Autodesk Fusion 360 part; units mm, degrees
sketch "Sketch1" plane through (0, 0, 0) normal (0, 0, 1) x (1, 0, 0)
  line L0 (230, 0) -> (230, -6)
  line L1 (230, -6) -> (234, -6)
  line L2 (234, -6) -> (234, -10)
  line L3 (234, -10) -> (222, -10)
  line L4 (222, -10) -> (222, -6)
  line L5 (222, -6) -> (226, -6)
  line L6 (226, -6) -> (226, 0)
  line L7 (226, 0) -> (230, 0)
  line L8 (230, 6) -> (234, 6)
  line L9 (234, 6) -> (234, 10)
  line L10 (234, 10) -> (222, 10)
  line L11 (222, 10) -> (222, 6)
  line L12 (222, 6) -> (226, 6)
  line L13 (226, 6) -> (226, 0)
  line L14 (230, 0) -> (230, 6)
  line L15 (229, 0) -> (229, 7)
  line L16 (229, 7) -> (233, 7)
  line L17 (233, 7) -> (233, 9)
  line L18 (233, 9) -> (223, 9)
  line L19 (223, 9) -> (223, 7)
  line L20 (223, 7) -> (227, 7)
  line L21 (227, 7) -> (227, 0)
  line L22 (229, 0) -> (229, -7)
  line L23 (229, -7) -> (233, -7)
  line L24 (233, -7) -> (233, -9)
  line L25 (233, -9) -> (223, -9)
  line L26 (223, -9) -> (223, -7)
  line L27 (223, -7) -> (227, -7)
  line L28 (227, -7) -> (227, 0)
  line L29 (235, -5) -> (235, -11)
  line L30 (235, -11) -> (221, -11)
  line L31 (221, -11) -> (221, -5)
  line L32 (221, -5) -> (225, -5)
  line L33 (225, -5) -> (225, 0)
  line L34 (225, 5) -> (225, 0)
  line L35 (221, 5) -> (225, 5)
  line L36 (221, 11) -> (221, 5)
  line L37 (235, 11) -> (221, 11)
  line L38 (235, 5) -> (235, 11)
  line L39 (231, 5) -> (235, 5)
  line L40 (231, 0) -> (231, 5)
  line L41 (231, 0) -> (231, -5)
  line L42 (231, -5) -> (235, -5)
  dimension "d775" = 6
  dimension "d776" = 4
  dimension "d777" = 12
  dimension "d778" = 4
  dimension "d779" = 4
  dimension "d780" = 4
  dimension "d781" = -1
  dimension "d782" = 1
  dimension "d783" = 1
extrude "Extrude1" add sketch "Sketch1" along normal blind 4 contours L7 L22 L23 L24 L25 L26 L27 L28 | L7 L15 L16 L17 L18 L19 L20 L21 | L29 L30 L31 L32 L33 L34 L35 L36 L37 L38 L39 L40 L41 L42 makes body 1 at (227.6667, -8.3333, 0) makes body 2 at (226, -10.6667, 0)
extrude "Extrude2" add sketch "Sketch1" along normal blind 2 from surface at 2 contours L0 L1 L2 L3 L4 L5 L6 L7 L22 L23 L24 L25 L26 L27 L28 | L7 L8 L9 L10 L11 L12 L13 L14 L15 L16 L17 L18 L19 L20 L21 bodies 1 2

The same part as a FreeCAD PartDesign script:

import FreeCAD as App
import Part
import Sketcher


def add_polygon(sketch, points):
    """Adds a closed chain of lines whose ends are joined by coincident constraints."""
    first, n = sketch.GeometryCount, len(points)
    for a, b in zip(points, points[1:] + points[:1]):
        sketch.addGeometry(Part.LineSegment(App.Vector(*a, 0), App.Vector(*b, 0)), False)
    for i in range(n):
        sketch.addConstraint(Sketcher.Constraint("Coincident", first + i, 2, first + (i + 1) % n, 1))

doc = App.newDocument("Part")
params = doc.addObject("Spreadsheet::Sheet", "Params")
for row, (alias, value) in enumerate([
    ("sketch1_width", "4 mm"),
    ("sketch1_width2", "12 mm"),
    ("sketch1_height", "6 mm"),
    ("pad1_length", "4 mm"),
    ("sketch2_width", "4 mm"),
    ("sketch2_width2", "12 mm"),
    ("pad2_length", "2 mm"),
], start=1):
    params.set(f"A{row}", alias)
    params.set(f"B{row}", "=" + value)
    params.setAlias(f"B{row}", alias)

body = doc.addObject("PartDesign::Body", "Body")
body.AllowCompound = True

# Sketch on XY plane
sketch1 = body.newObject("Sketcher::SketchObject", "Sketch")
sketch1.AttachmentSupport = (doc.getObject("XY_Plane"), [""])
sketch1.MapMode = "FlatFace"
add_polygon(sketch1, [(229, -7), (229, 7), (233, 7), (233, 9), (223, 9), (223, 7), (227, 7), (227, -7), (223, -7), (223, -9), (233, -9), (233, -7)])  # lines 0-11
add_polygon(sketch1, [(235, -11), (235, -5), (231, -5), (231, 5), (235, 5), (235, 11), (221, 11), (221, 5), (225, 5), (225, -5), (221, -5), (221, -11)])  # lines 12-23
add_polygon(sketch1, [(230, 6), (230, -6), (234, -6), (234, -10), (222, -10), (222, -6), (226, -6), (226, 6), (222, 6), (222, 10), (234, 10), (234, 6)])  # lines 24-35
sketch1.addConstraint(Sketcher.Constraint("Vertical", 0))
sketch1.addConstraint(Sketcher.Constraint("Horizontal", 1))
sketch1.addConstraint(Sketcher.Constraint("Vertical", 2))
sketch1.addConstraint(Sketcher.Constraint("Horizontal", 3))
sketch1.addConstraint(Sketcher.Constraint("Vertical", 4))
sketch1.addConstraint(Sketcher.Constraint("Horizontal", 5))
sketch1.addConstraint(Sketcher.Constraint("Vertical", 6))
sketch1.addConstraint(Sketcher.Constraint("Horizontal", 7))
sketch1.addConstraint(Sketcher.Constraint("Vertical", 8))
sketch1.addConstraint(Sketcher.Constraint("Horizontal", 9))
sketch1.addConstraint(Sketcher.Constraint("Vertical", 10))
sketch1.addConstraint(Sketcher.Constraint("Horizontal", 11))
sketch1.addConstraint(Sketcher.Constraint("Vertical", 12))
sketch1.addConstraint(Sketcher.Constraint("Horizontal", 13))
sketch1.addConstraint(Sketcher.Constraint("Vertical", 14))
sketch1.addConstraint(Sketcher.Constraint("Horizontal", 15))
sketch1.addConstraint(Sketcher.Constraint("Vertical", 16))
sketch1.addConstraint(Sketcher.Constraint("Horizontal", 17))
sketch1.addConstraint(Sketcher.Constraint("Vertical", 18))
sketch1.addConstraint(Sketcher.Constraint("Horizontal", 19))
sketch1.addConstraint(Sketcher.Constraint("Vertical", 20))
sketch1.addConstraint(Sketcher.Constraint("Horizontal", 21))
sketch1.addConstraint(Sketcher.Constraint("Vertical", 22))
sketch1.addConstraint(Sketcher.Constraint("Horizontal", 23))
sketch1.addConstraint(Sketcher.Constraint("Vertical", 24))
sketch1.addConstraint(Sketcher.Constraint("Horizontal", 25))
sketch1.addConstraint(Sketcher.Constraint("Vertical", 26))
sketch1.addConstraint(Sketcher.Constraint("Horizontal", 27))
sketch1.addConstraint(Sketcher.Constraint("Vertical", 28))
sketch1.addConstraint(Sketcher.Constraint("Horizontal", 29))
sketch1.addConstraint(Sketcher.Constraint("Vertical", 30))
sketch1.addConstraint(Sketcher.Constraint("Horizontal", 31))
sketch1.addConstraint(Sketcher.Constraint("Vertical", 32))
sketch1.addConstraint(Sketcher.Constraint("Horizontal", 33))
sketch1.addConstraint(Sketcher.Constraint("Vertical", 34))
sketch1.addConstraint(Sketcher.Constraint("Horizontal", 35))
sketch1.addConstraint(Sketcher.Constraint("Symmetric", 4, 2, 7, 2, -1))
sketch1.addConstraint(Sketcher.Constraint("Symmetric", 2, 2, 9, 2, -1))
sketch1.addConstraint(Sketcher.Constraint("Symmetric", 12, 2, 15, 2, -1))
sketch1.addConstraint(Sketcher.Constraint("Symmetric", 18, 2, 21, 2, -1))
sketch1.addConstraint(Sketcher.Constraint("Symmetric", 28, 2, 31, 2, -1))
sketch1.addConstraint(Sketcher.Constraint("Symmetric", 26, 2, 33, 2, -1))
sketch1.addConstraint(Sketcher.Constraint("Horizontal", 1, 2, 4, 2))
sketch1.addConstraint(Sketcher.Constraint("Horizontal", 7, 2, 10, 2))
sketch1.addConstraint(Sketcher.Constraint("Horizontal", 15, 2, 18, 2))
sketch1.addConstraint(Sketcher.Constraint("Horizontal", 25, 2, 28, 2))
sketch1.addConstraint(Sketcher.Constraint("Horizontal", 31, 2, 34, 2))
sketch1.addConstraint(Sketcher.Constraint("Equal", 1, 5))
sketch1.addConstraint(Sketcher.Constraint("Equal", 11, 13))
sketch1.addConstraint(Sketcher.Constraint("Equal", 15, 19))
sketch1.addConstraint(Sketcher.Constraint("Equal", 21, 25))
sketch1.addConstraint(Sketcher.Constraint("Equal", 25, 29))
sketch1.addConstraint(Sketcher.Constraint("Equal", 23, 0))
sketch1.addConstraint(Sketcher.Constraint("Equal", 9, 14))
sketch1.addConstraint(Sketcher.Constraint("Equal", 12, 16))
sketch1.addConstraint(Sketcher.Constraint("Equal", 33, 24))
sketch1.addConstraint(Sketcher.Constraint("Equal", 35, 26))
sketch1.addConstraint(Sketcher.Constraint("DistanceX", 1, 1, 1, 2, 4.0))
sketch1.addConstraint(Sketcher.Constraint("DistanceX", 27, 2, 27, 1, 12.0))
sketch1.addConstraint(Sketcher.Constraint("DistanceY", 12, 1, 12, 2, 6.0))
sketch1.addConstraint(Sketcher.Constraint("DistanceX", 3, 2, 0, 2, 6.0))
sketch1.addConstraint(Sketcher.Constraint("DistanceY", 9, 2, 12, 2, 4.0))
sketch1.addConstraint(Sketcher.Constraint("DistanceX", 11, 2, 12, 2, 6.0))
sketch1.addConstraint(Sketcher.Constraint("DistanceY", 12, 2, 1, 2, 12.0))
sketch1.addConstraint(Sketcher.Constraint("DistanceX", 11, 2, 24, 2, 1.0))
sketch1.addConstraint(Sketcher.Constraint("DistanceX", -1, 1, 0, 2, 229.0))
sketch1.setExpression("Constraints[93]", "Params.sketch1_width")
sketch1.setExpression("Constraints[94]", "Params.sketch1_width2")
sketch1.setExpression("Constraints[95]", "Params.sketch1_height")
pad1 = body.newObject("PartDesign::Pad", "Pad")
pad1.Profile = sketch1
pad1.setExpression("Length", "Params.pad1_length")

# Sketch on XY plane
sketch2 = body.newObject("Sketcher::SketchObject", "Sketch001")
sketch2.AttachmentSupport = (doc.getObject("XY_Plane"), [""])
sketch2.MapMode = "FlatFace"
sketch2.AttachmentOffset = App.Placement(App.Vector(0, 0, 2), App.Rotation())
add_polygon(sketch2, [(230, -6), (230, 6), (234, 6), (234, 10), (222, 10), (222, 6), (226, 6), (226, -6), (222, -6), (222, -10), (234, -10), (234, -6)])  # lines 0-11
add_polygon(sketch2, [(227, -7), (227, 7), (223, 7), (223, 9), (233, 9), (233, 7), (229, 7), (229, -7), (233, -7), (233, -9), (223, -9), (223, -7)])  # lines 12-23
sketch2.addConstraint(Sketcher.Constraint("Vertical", 0))
sketch2.addConstraint(Sketcher.Constraint("Horizontal", 1))
sketch2.addConstraint(Sketcher.Constraint("Vertical", 2))
sketch2.addConstraint(Sketcher.Constraint("Horizontal", 3))
sketch2.addConstraint(Sketcher.Constraint("Vertical", 4))
sketch2.addConstraint(Sketcher.Constraint("Horizontal", 5))
sketch2.addConstraint(Sketcher.Constraint("Vertical", 6))
sketch2.addConstraint(Sketcher.Constraint("Horizontal", 7))
sketch2.addConstraint(Sketcher.Constraint("Vertical", 8))
sketch2.addConstraint(Sketcher.Constraint("Horizontal", 9))
sketch2.addConstraint(Sketcher.Constraint("Vertical", 10))
sketch2.addConstraint(Sketcher.Constraint("Horizontal", 11))
sketch2.addConstraint(Sketcher.Constraint("Vertical", 12))
sketch2.addConstraint(Sketcher.Constraint("Horizontal", 13))
sketch2.addConstraint(Sketcher.Constraint("Vertical", 14))
sketch2.addConstraint(Sketcher.Constraint("Horizontal", 15))
sketch2.addConstraint(Sketcher.Constraint("Vertical", 16))
sketch2.addConstraint(Sketcher.Constraint("Horizontal", 17))
sketch2.addConstraint(Sketcher.Constraint("Vertical", 18))
sketch2.addConstraint(Sketcher.Constraint("Horizontal", 19))
sketch2.addConstraint(Sketcher.Constraint("Vertical", 20))
sketch2.addConstraint(Sketcher.Constraint("Horizontal", 21))
sketch2.addConstraint(Sketcher.Constraint("Vertical", 22))
sketch2.addConstraint(Sketcher.Constraint("Horizontal", 23))
sketch2.addConstraint(Sketcher.Constraint("Symmetric", 4, 2, 7, 2, -1))
sketch2.addConstraint(Sketcher.Constraint("Symmetric", 2, 2, 9, 2, -1))
sketch2.addConstraint(Sketcher.Constraint("Symmetric", 16, 2, 19, 2, -1))
sketch2.addConstraint(Sketcher.Constraint("Symmetric", 14, 2, 21, 2, -1))
sketch2.addConstraint(Sketcher.Constraint("Horizontal", 1, 2, 4, 2))
sketch2.addConstraint(Sketcher.Constraint("Horizontal", 7, 2, 10, 2))
sketch2.addConstraint(Sketcher.Constraint("Horizontal", 13, 2, 16, 2))
sketch2.addConstraint(Sketcher.Constraint("Horizontal", 19, 2, 22, 2))
sketch2.addConstraint(Sketcher.Constraint("Equal", 1, 5))
sketch2.addConstraint(Sketcher.Constraint("Equal", 11, 13))
sketch2.addConstraint(Sketcher.Constraint("Equal", 13, 17))
sketch2.addConstraint(Sketcher.Constraint("Equal", 9, 0))
sketch2.addConstraint(Sketcher.Constraint("Equal", 23, 2))
sketch2.addConstraint(Sketcher.Constraint("DistanceX", 1, 1, 1, 2, 4.0))
sketch2.addConstraint(Sketcher.Constraint("DistanceX", 3, 2, 3, 1, 12.0))
sketch2.addConstraint(Sketcher.Constraint("DistanceX", 5, 2, 12, 2, 1.0))
sketch2.addConstraint(Sketcher.Constraint("DistanceY", 5, 2, 12, 2, 1.0))
sketch2.addConstraint(Sketcher.Constraint("DistanceY", 14, 2, 3, 2, 1.0))
sketch2.addConstraint(Sketcher.Constraint("DistanceX", 15, 2, 2, 2, 1.0))
sketch2.addConstraint(Sketcher.Constraint("DistanceX", -1, 1, 0, 2, 230.0))
sketch2.setExpression("Constraints[61]", "Params.sketch2_width")
sketch2.setExpression("Constraints[62]", "Params.sketch2_width2")
pad2 = body.newObject("PartDesign::Pad", "Pad001")
pad2.Profile = sketch2
pad2.setExpression("Length", "Params.pad2_length")

doc.recompute()
